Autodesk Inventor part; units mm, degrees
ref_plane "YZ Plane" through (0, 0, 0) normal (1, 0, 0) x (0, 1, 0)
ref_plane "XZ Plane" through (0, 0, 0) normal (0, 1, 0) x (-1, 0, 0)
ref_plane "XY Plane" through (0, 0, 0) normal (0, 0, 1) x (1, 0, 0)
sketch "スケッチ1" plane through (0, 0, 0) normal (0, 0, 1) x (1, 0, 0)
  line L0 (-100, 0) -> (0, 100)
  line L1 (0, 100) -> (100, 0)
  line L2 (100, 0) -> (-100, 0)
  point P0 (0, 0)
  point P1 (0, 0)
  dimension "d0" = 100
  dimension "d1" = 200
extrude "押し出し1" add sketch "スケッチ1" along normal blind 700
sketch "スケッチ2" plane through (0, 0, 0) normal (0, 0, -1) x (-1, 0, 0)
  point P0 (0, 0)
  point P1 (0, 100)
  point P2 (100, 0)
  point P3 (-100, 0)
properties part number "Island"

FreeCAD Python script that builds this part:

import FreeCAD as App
import Part
import Sketcher

doc = App.newDocument("Part")
body = doc.addObject("PartDesign::Body", "Body")

sketch1 = body.newObject("Sketcher::SketchObject", "Sketch")
sketch1.AttachmentSupport = (doc.getObject("XY_Plane"), [""])
sketch1.MapMode = "FlatFace"
sketch1.addGeometry(Part.LineSegment(App.Vector(0, 100, 0), App.Vector(-100, 0, 0)), False)
sketch1.addGeometry(Part.LineSegment(App.Vector(-100, 0, 0), App.Vector(100, 0, 0)), False)
sketch1.addGeometry(Part.LineSegment(App.Vector(100, 0, 0), App.Vector(0, 100, 0)), False)
sketch1.addConstraint(Sketcher.Constraint("Coincident", 0, 2, 1, 1))
sketch1.addConstraint(Sketcher.Constraint("Coincident", 1, 2, 2, 1))
sketch1.addConstraint(Sketcher.Constraint("Coincident", 2, 2, 0, 1))
sketch1.addConstraint(Sketcher.Constraint("Horizontal", 1))
sketch1.addConstraint(Sketcher.Constraint("Symmetric", 0, 2, 1, 2, -1, 1))
sketch1.addConstraint(Sketcher.Constraint("PointOnObject", 2, 2, -2))
sketch1.addConstraint(Sketcher.Constraint("Perpendicular", 0, 2))
sketch1.addConstraint(Sketcher.Constraint("DistanceX", 1, 1, 1, 2, 200.0))
pad1 = body.newObject("PartDesign::Pad", "Pad")
pad1.Profile = sketch1
pad1.Length = 700

doc.recompute()
